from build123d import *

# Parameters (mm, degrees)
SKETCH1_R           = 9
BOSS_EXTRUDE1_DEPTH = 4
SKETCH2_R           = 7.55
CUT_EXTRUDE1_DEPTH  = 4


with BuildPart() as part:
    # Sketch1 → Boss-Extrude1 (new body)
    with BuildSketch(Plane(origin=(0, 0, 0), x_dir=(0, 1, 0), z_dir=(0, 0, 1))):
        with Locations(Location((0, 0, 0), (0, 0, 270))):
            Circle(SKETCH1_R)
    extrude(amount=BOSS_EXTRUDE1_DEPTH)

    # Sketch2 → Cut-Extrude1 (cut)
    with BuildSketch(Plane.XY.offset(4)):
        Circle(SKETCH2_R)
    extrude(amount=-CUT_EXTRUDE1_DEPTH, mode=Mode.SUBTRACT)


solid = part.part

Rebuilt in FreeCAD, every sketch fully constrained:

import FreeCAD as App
import Part
import Sketcher

V = App.Vector
Q = App.Units.Quantity

doc = App.newDocument("Part")
body = doc.addObject("PartDesign::Body", "Body")

sketch1 = doc.addObject("Sketcher::SketchObject", "Sketch")
body.addObject(sketch1)
sketch1.AttachmentSupport = (doc.XY_Plane, [""])
sketch1.MapMode = "FlatFace"
sketch1.addGeometry(Part.Circle(V(0, 0, 0), V(0, 0, 1), 9), False)
sketch1.addConstraint([
    Sketcher.Constraint("Coincident", 0, 3, -1, 1),
    Sketcher.Constraint("Diameter", 0, Q("18 mm")),
])
pad1 = doc.addObject("PartDesign::Pad", "Pad")
body.addObject(pad1)
pad1.Profile = sketch1
pad1.Length = 4

sketch2 = doc.addObject("Sketcher::SketchObject", "Sketch001")
body.addObject(sketch2)
sketch2.AttachmentSupport = (doc.XY_Plane, [""])
sketch2.MapMode = "FlatFace"
sketch2.AttachmentOffset = App.Placement(V(0, 0, 4), App.Rotation())
sketch2.addGeometry(Part.Circle(V(0, 0, 0), V(0, 0, 1), 7.55), False)
sketch2.addConstraint([
    Sketcher.Constraint("Coincident", 0, 3, -1, 1),
    Sketcher.Constraint("Diameter", 0, Q("15.1 mm")),
])
pocket1 = doc.addObject("PartDesign::Pocket", "Pocket")
body.addObject(pocket1)
pocket1.Profile = sketch2
pocket1.Length = 4

doc.recompute()
